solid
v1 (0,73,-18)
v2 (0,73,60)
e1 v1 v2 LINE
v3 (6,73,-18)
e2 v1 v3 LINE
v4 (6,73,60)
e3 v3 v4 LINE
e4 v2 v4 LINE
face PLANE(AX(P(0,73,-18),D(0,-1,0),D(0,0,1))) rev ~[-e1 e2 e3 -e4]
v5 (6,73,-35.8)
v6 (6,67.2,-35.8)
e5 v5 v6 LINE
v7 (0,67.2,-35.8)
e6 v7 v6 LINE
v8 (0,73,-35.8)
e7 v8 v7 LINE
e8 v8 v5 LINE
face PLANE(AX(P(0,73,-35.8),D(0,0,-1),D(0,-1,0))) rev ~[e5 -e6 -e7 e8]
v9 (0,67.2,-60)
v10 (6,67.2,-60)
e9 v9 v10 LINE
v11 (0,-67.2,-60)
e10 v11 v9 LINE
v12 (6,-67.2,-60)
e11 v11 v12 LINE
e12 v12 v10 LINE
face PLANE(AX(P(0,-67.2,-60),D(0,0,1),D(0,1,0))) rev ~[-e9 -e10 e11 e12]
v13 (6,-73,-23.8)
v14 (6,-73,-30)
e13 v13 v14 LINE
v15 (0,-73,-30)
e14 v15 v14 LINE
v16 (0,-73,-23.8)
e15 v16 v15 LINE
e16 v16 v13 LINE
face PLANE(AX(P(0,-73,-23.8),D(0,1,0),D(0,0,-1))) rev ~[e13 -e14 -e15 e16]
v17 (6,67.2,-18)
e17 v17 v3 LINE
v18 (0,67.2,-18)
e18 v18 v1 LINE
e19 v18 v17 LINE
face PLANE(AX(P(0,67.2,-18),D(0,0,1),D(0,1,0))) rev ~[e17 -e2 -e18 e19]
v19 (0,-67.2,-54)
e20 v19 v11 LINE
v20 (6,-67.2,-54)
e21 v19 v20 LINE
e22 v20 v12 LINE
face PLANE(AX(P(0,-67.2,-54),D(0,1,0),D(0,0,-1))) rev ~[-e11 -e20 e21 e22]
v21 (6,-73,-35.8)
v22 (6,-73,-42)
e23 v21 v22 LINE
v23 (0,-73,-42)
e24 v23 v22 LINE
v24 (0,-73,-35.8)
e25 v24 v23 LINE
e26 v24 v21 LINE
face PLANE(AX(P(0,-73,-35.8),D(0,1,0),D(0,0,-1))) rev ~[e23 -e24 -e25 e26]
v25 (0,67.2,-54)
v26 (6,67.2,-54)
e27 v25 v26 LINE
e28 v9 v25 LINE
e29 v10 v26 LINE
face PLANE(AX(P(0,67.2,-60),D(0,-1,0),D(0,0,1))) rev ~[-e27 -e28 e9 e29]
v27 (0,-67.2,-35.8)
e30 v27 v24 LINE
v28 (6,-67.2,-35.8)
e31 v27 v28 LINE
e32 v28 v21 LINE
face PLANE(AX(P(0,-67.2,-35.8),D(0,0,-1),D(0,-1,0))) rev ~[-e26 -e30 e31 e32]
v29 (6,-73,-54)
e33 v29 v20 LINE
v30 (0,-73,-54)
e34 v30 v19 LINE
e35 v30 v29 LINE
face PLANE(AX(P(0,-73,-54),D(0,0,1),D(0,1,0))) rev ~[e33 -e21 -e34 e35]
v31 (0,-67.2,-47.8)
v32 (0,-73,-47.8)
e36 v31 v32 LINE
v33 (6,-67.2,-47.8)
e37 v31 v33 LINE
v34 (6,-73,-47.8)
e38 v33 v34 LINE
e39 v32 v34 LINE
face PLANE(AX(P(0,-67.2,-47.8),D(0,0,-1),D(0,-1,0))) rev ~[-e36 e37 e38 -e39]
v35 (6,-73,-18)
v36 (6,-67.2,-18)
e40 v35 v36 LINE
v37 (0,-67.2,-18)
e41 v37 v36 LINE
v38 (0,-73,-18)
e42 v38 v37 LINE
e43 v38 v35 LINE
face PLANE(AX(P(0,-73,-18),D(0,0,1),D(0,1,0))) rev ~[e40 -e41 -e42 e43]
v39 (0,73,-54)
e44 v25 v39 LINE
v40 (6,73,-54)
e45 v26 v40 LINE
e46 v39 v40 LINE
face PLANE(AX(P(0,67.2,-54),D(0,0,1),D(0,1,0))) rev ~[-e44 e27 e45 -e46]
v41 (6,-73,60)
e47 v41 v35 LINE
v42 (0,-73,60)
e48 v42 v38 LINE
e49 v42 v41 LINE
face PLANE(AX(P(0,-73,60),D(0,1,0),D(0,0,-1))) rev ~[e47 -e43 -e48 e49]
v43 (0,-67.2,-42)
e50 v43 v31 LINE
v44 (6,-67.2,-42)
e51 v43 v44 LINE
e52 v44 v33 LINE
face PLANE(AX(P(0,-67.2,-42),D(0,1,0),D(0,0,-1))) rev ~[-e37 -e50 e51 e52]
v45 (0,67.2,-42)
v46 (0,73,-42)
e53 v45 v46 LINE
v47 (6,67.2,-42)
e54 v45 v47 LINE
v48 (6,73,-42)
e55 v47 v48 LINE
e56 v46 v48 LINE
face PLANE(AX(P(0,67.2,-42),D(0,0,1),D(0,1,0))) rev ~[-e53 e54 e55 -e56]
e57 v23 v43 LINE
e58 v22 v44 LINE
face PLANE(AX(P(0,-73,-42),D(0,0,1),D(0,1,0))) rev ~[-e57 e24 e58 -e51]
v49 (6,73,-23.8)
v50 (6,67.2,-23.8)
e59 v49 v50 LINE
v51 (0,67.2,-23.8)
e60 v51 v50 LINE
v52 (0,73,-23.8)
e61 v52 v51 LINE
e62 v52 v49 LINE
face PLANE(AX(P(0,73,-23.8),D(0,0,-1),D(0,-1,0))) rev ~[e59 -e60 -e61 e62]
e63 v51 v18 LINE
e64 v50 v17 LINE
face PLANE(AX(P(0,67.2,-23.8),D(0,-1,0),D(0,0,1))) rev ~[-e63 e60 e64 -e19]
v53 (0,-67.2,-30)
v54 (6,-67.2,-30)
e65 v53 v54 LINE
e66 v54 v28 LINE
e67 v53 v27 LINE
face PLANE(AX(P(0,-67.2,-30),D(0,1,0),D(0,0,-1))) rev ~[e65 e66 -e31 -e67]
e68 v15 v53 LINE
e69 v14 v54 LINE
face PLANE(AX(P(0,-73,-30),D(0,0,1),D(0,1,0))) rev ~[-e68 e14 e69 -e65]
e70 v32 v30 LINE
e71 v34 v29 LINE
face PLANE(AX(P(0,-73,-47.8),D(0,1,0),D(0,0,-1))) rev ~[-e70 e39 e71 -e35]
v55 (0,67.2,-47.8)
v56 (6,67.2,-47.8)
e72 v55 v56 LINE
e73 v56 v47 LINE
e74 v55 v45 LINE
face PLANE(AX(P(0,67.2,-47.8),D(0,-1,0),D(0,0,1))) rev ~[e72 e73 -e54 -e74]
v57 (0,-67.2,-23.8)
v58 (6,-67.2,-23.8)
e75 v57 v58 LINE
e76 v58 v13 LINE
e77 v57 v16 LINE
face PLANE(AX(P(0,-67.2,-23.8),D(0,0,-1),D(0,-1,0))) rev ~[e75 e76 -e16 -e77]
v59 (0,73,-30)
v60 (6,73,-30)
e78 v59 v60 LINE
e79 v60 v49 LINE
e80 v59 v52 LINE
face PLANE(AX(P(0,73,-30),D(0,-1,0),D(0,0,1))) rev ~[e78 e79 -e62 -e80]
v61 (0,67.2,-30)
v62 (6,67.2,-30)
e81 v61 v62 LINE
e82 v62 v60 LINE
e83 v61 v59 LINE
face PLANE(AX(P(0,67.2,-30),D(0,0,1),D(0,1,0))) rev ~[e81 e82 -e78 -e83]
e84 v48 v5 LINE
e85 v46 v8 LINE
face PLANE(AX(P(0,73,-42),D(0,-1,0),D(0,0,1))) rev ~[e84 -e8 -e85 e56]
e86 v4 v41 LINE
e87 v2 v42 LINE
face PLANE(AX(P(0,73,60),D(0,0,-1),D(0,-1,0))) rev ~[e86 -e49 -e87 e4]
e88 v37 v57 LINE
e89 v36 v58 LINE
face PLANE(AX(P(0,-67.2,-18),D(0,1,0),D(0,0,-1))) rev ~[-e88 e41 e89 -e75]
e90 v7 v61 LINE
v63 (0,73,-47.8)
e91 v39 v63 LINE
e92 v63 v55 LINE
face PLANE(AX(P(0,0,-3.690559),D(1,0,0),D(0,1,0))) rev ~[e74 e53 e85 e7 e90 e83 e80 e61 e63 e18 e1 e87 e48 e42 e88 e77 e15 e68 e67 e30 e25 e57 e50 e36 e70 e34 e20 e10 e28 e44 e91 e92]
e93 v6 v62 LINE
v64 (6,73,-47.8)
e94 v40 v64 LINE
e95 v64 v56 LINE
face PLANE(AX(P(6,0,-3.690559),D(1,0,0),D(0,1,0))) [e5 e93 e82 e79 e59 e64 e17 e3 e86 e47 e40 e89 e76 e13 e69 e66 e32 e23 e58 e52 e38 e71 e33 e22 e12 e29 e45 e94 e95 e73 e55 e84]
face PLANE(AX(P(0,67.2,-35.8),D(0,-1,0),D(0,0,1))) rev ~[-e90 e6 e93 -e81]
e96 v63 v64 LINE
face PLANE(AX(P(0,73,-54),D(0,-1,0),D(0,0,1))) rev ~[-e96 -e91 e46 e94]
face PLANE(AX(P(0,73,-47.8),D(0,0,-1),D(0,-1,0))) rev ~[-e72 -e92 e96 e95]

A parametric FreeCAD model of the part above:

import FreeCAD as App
import Part
import Sketcher

V = App.Vector


def add_polygon(sketch, points):
    """Adds a closed chain of lines whose ends are joined by coincident constraints."""
    first, n = sketch.GeometryCount, len(points)
    for a, b in zip(points, points[1:] + points[:1]):
        sketch.addGeometry(Part.LineSegment(App.Vector(*a, 0), App.Vector(*b, 0)), False)
    for i in range(n):
        sketch.addConstraint(Sketcher.Constraint("Coincident", first + i, 2, first + (i + 1) % n, 1))

doc = App.newDocument("Part")
body = doc.addObject("PartDesign::Body", "Body")

sketch1 = body.newObject("Sketcher::SketchObject", "Sketch")
sketch1.AttachmentSupport = (doc.getObject("YZ_Plane"), [""])
sketch1.MapMode = "FlatFace"
add_polygon(sketch1, [(-67, -60), (67, -60), (67, -54), (73, -54), (73, -48), (67, -48), (67, -42), (73, -42), (73, -36), (67, -36), (67, -30), (73, -30), (73, -24), (67, -24), (67, -18), (73, -18), (73, 60), (-73, 60), (-73, -18), (-67, -18), (-67, -24), (-73, -24), (-73, -30), (-67, -30), (-67, -36), (-73, -36), (-73, -42), (-67, -42), (-67, -48), (-73, -48), (-73, -54), (-67, -54)])
sketch1.addConstraint([
    Sketcher.Constraint("Horizontal", 0),
    Sketcher.Constraint("Vertical", 1),
    Sketcher.Constraint("Horizontal", 2),
    Sketcher.Constraint("Vertical", 3),
    Sketcher.Constraint("Horizontal", 4),
    Sketcher.Constraint("Vertical", 5),
    Sketcher.Constraint("Horizontal", 6),
    Sketcher.Constraint("Vertical", 7),
    Sketcher.Constraint("Horizontal", 8),
    Sketcher.Constraint("Vertical", 9),
    Sketcher.Constraint("Horizontal", 10),
    Sketcher.Constraint("Vertical", 11),
    Sketcher.Constraint("Horizontal", 12),
    Sketcher.Constraint("Vertical", 13),
    Sketcher.Constraint("Horizontal", 14),
    Sketcher.Constraint("Vertical", 15),
    Sketcher.Constraint("Horizontal", 16),
    Sketcher.Constraint("Vertical", 17),
    Sketcher.Constraint("Horizontal", 18),
    Sketcher.Constraint("Vertical", 19),
    Sketcher.Constraint("Horizontal", 20),
    Sketcher.Constraint("Vertical", 21),
    Sketcher.Constraint("Horizontal", 22),
    Sketcher.Constraint("Vertical", 23),
    Sketcher.Constraint("Horizontal", 24),
    Sketcher.Constraint("Vertical", 25),
    Sketcher.Constraint("Horizontal", 26),
    Sketcher.Constraint("Vertical", 27),
    Sketcher.Constraint("Horizontal", 28),
    Sketcher.Constraint("Vertical", 29),
    Sketcher.Constraint("Horizontal", 30),
    Sketcher.Constraint("Vertical", 31),
    Sketcher.Constraint("Symmetric", 14, 2, 17, 2, -2),
    Sketcher.Constraint("Symmetric", 12, 2, 19, 2, -2),
    Sketcher.Constraint("Symmetric", 10, 2, 21, 2, -2),
    Sketcher.Constraint("Symmetric", 8, 2, 23, 2, -2),
    Sketcher.Constraint("Symmetric", 6, 2, 25, 2, -2),
    Sketcher.Constraint("Symmetric", 4, 2, 27, 2, -2),
    Sketcher.Constraint("Symmetric", 2, 2, 29, 2, -2),
    Sketcher.Constraint("Vertical", 1, 2, 4, 2),
    Sketcher.Constraint("Vertical", 3, 2, 6, 2),
    Sketcher.Constraint("Vertical", 5, 2, 8, 2),
    Sketcher.Constraint("Vertical", 7, 2, 10, 2),
    Sketcher.Constraint("Vertical", 9, 2, 12, 2),
    Sketcher.Constraint("Vertical", 11, 2, 14, 2),
    Sketcher.Constraint("Vertical", 27, 2, 30, 2),
    Sketcher.Constraint("Equal", 30, 5),
    Sketcher.Constraint("Equal", 3, 7),
    Sketcher.Constraint("Equal", 5, 9),
    Sketcher.Constraint("Equal", 7, 11),
    Sketcher.Constraint("Equal", 9, 13),
    Sketcher.Constraint("DistanceX", 16, 2, 16, 1, 146.0),
    Sketcher.Constraint("DistanceY", 1, 1, 1, 2, 6.0),
    Sketcher.Constraint("DistanceY", 15, 1, 15, 2, 78.0),
    Sketcher.Constraint("DistanceX", 0, 1, 0, 2, 134.4),
    Sketcher.Constraint("DistanceY", 3, 1, 3, 2, 6.2),
    Sketcher.Constraint("DistanceY", 0, 2, -1, 1, 60.0),
])
pad1 = body.newObject("PartDesign::Pad", "Pad")
pad1.Profile = sketch1
pad1.Length = 6

doc.recompute()
